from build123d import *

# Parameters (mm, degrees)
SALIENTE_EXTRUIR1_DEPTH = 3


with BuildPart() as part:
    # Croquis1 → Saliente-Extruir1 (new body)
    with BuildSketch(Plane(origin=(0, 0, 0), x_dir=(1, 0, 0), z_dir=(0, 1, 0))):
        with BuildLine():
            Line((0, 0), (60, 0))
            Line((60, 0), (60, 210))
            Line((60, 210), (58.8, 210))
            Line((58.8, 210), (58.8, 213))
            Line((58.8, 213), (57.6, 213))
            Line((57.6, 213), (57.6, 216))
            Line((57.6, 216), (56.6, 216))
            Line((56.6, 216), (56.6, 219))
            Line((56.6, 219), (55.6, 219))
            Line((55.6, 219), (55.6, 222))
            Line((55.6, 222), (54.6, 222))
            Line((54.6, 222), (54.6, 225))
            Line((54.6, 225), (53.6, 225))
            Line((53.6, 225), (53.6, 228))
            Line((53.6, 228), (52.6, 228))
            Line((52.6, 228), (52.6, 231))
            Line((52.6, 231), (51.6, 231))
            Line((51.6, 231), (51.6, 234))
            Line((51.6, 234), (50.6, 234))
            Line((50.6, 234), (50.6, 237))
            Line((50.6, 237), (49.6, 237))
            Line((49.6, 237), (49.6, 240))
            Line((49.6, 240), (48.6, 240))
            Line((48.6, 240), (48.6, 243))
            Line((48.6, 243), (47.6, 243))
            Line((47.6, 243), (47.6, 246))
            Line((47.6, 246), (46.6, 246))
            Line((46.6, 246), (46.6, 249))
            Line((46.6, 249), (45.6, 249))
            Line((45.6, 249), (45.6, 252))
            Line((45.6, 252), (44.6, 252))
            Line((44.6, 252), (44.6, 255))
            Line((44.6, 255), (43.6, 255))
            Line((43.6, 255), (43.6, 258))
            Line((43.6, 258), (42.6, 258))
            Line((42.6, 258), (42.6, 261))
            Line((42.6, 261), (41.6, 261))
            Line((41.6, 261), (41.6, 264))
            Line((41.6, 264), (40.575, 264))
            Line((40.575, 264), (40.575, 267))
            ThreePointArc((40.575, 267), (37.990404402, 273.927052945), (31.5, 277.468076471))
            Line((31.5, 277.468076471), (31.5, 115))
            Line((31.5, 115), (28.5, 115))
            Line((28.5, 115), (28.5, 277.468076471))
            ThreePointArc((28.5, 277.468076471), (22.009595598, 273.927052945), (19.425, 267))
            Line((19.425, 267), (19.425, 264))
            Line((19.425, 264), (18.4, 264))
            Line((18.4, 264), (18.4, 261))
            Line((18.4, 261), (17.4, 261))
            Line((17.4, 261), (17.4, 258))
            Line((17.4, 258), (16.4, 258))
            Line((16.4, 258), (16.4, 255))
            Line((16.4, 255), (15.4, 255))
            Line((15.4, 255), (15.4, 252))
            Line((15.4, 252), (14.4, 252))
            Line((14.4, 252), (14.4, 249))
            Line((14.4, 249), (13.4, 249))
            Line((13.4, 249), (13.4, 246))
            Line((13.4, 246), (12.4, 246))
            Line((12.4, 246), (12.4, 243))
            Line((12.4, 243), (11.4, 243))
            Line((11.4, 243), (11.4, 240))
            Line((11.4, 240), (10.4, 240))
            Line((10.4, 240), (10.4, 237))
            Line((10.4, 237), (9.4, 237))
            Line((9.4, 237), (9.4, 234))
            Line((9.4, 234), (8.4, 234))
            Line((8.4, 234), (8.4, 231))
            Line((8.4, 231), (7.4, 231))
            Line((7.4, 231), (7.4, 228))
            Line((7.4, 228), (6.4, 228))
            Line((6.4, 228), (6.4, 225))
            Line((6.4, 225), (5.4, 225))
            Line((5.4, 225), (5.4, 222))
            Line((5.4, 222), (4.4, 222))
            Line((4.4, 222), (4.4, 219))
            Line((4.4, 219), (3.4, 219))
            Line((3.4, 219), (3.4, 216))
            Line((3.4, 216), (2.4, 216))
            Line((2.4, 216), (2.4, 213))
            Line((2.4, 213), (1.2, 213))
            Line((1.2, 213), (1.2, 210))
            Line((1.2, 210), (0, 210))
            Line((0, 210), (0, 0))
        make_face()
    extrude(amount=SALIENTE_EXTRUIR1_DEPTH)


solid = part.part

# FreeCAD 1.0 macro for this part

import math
import FreeCAD as App
import Part
import Sketcher
from FreeCAD import Vector

doc = App.newDocument("Part")
body = doc.addObject("PartDesign::Body", "Body")

sketch1 = body.newObject("Sketcher::SketchObject", "Sketch")
sketch1.AttachmentSupport = (doc.getObject("XZ_Plane"), [""])
sketch1.MapMode = "FlatFace"
sketch1.addGeometry([
    Part.LineSegment(Vector(0, 0, 0), Vector(60, 0, 0)),
    Part.LineSegment(Vector(60, 0, 0), Vector(60, -210, 0)),
    Part.LineSegment(Vector(60, -210, 0), Vector(58.8, -210, 0)),
    Part.LineSegment(Vector(58.8, -210, 0), Vector(58.8, -213, 0)),
    Part.LineSegment(Vector(58.8, -213, 0), Vector(57.6, -213, 0)),
    Part.LineSegment(Vector(57.6, -213, 0), Vector(57.6, -216, 0)),
    Part.LineSegment(Vector(57.6, -216, 0), Vector(56.6, -216, 0)),
    Part.LineSegment(Vector(56.6, -216, 0), Vector(56.6, -219, 0)),
    Part.LineSegment(Vector(56.6, -219, 0), Vector(55.6, -219, 0)),
    Part.LineSegment(Vector(55.6, -219, 0), Vector(55.6, -222, 0)),
    Part.LineSegment(Vector(55.6, -222, 0), Vector(54.6, -222, 0)),
    Part.LineSegment(Vector(54.6, -222, 0), Vector(54.6, -225, 0)),
    Part.LineSegment(Vector(54.6, -225, 0), Vector(53.6, -225, 0)),
    Part.LineSegment(Vector(53.6, -225, 0), Vector(53.6, -228, 0)),
    Part.LineSegment(Vector(53.6, -228, 0), Vector(52.6, -228, 0)),
    Part.LineSegment(Vector(52.6, -228, 0), Vector(52.6, -231, 0)),
    Part.LineSegment(Vector(52.6, -231, 0), Vector(51.6, -231, 0)),
    Part.LineSegment(Vector(51.6, -231, 0), Vector(51.6, -234, 0)),
    Part.LineSegment(Vector(51.6, -234, 0), Vector(50.6, -234, 0)),
    Part.LineSegment(Vector(50.6, -234, 0), Vector(50.6, -237, 0)),
    Part.LineSegment(Vector(50.6, -237, 0), Vector(49.6, -237, 0)),
    Part.LineSegment(Vector(49.6, -237, 0), Vector(49.6, -240, 0)),
    Part.LineSegment(Vector(49.6, -240, 0), Vector(48.6, -240, 0)),
    Part.LineSegment(Vector(48.6, -240, 0), Vector(48.6, -243, 0)),
    Part.LineSegment(Vector(48.6, -243, 0), Vector(47.6, -243, 0)),
    Part.LineSegment(Vector(47.6, -243, 0), Vector(47.6, -246, 0)),
    Part.LineSegment(Vector(47.6, -246, 0), Vector(46.6, -246, 0)),
    Part.LineSegment(Vector(46.6, -246, 0), Vector(46.6, -249, 0)),
    Part.LineSegment(Vector(46.6, -249, 0), Vector(45.6, -249, 0)),
    Part.LineSegment(Vector(45.6, -249, 0), Vector(45.6, -252, 0)),
    Part.LineSegment(Vector(45.6, -252, 0), Vector(44.6, -252, 0)),
    Part.LineSegment(Vector(44.6, -252, 0), Vector(44.6, -255, 0)),
    Part.LineSegment(Vector(44.6, -255, 0), Vector(43.6, -255, 0)),
    Part.LineSegment(Vector(43.6, -255, 0), Vector(43.6, -258, 0)),
    Part.LineSegment(Vector(43.6, -258, 0), Vector(42.6, -258, 0)),
    Part.LineSegment(Vector(42.6, -258, 0), Vector(42.6, -261, 0)),
    Part.LineSegment(Vector(42.6, -261, 0), Vector(41.6, -261, 0)),
    Part.LineSegment(Vector(41.6, -261, 0), Vector(41.6, -264, 0)),
    Part.LineSegment(Vector(41.6, -264, 0), Vector(40.6, -264, 0)),
    Part.LineSegment(Vector(40.6, -264, 0), Vector(40.6, -267, 0)),
    Part.ArcOfCircle(Part.Circle(Vector(30, -267, 0), Vector(0, 0, 1), 10.6), math.radians(-82), math.radians(0)),
    Part.LineSegment(Vector(31.5, -277.5, 0), Vector(31.5, -115, 0)),
    Part.LineSegment(Vector(31.5, -115, 0), Vector(28.5, -115, 0)),
    Part.LineSegment(Vector(28.5, -115, 0), Vector(28.5, -277.5, 0)),
    Part.ArcOfCircle(Part.Circle(Vector(30, -267, 0), Vector(0, 0, 1), 10.6), math.radians(180), math.radians(262)),
    Part.LineSegment(Vector(19.4, -267, 0), Vector(19.4, -264, 0)),
    Part.LineSegment(Vector(19.4, -264, 0), Vector(18.4, -264, 0)),
    Part.LineSegment(Vector(18.4, -264, 0), Vector(18.4, -261, 0)),
    Part.LineSegment(Vector(18.4, -261, 0), Vector(17.4, -261, 0)),
    Part.LineSegment(Vector(17.4, -261, 0), Vector(17.4, -258, 0)),
    Part.LineSegment(Vector(17.4, -258, 0), Vector(16.4, -258, 0)),
    Part.LineSegment(Vector(16.4, -258, 0), Vector(16.4, -255, 0)),
    Part.LineSegment(Vector(16.4, -255, 0), Vector(15.4, -255, 0)),
    Part.LineSegment(Vector(15.4, -255, 0), Vector(15.4, -252, 0)),
    Part.LineSegment(Vector(15.4, -252, 0), Vector(14.4, -252, 0)),
    Part.LineSegment(Vector(14.4, -252, 0), Vector(14.4, -249, 0)),
    Part.LineSegment(Vector(14.4, -249, 0), Vector(13.4, -249, 0)),
    Part.LineSegment(Vector(13.4, -249, 0), Vector(13.4, -246, 0)),
    Part.LineSegment(Vector(13.4, -246, 0), Vector(12.4, -246, 0)),
    Part.LineSegment(Vector(12.4, -246, 0), Vector(12.4, -243, 0)),
    Part.LineSegment(Vector(12.4, -243, 0), Vector(11.4, -243, 0)),
    Part.LineSegment(Vector(11.4, -243, 0), Vector(11.4, -240, 0)),
    Part.LineSegment(Vector(11.4, -240, 0), Vector(10.4, -240, 0)),
    Part.LineSegment(Vector(10.4, -240, 0), Vector(10.4, -237, 0)),
    Part.LineSegment(Vector(10.4, -237, 0), Vector(9.4, -237, 0)),
    Part.LineSegment(Vector(9.4, -237, 0), Vector(9.4, -234, 0)),
    Part.LineSegment(Vector(9.4, -234, 0), Vector(8.4, -234, 0)),
    Part.LineSegment(Vector(8.4, -234, 0), Vector(8.4, -231, 0)),
    Part.LineSegment(Vector(8.4, -231, 0), Vector(7.4, -231, 0)),
    Part.LineSegment(Vector(7.4, -231, 0), Vector(7.4, -228, 0)),
    Part.LineSegment(Vector(7.4, -228, 0), Vector(6.4, -228, 0)),
    Part.LineSegment(Vector(6.4, -228, 0), Vector(6.4, -225, 0)),
    Part.LineSegment(Vector(6.4, -225, 0), Vector(5.4, -225, 0)),
    Part.LineSegment(Vector(5.4, -225, 0), Vector(5.4, -222, 0)),
    Part.LineSegment(Vector(5.4, -222, 0), Vector(4.4, -222, 0)),
    Part.LineSegment(Vector(4.4, -222, 0), Vector(4.4, -219, 0)),
    Part.LineSegment(Vector(4.4, -219, 0), Vector(3.4, -219, 0)),
    Part.LineSegment(Vector(3.4, -219, 0), Vector(3.4, -216, 0)),
    Part.LineSegment(Vector(3.4, -216, 0), Vector(2.4, -216, 0)),
    Part.LineSegment(Vector(2.4, -216, 0), Vector(2.4, -213, 0)),
    Part.LineSegment(Vector(2.4, -213, 0), Vector(1.2, -213, 0)),
    Part.LineSegment(Vector(1.2, -213, 0), Vector(1.2, -210, 0)),
    Part.LineSegment(Vector(1.2, -210, 0), Vector(0, -210, 0)),
    Part.LineSegment(Vector(0, -210, 0), Vector(0, 0, 0)),
], False)
sketch1.addConstraint([
    Sketcher.Constraint("Coincident", 0, 2, 1, 1),
    Sketcher.Constraint("Coincident", 1, 2, 2, 1),
    Sketcher.Constraint("Coincident", 2, 2, 3, 1),
    Sketcher.Constraint("Coincident", 3, 2, 4, 1),
    Sketcher.Constraint("Coincident", 4, 2, 5, 1),
    Sketcher.Constraint("Coincident", 5, 2, 6, 1),
    Sketcher.Constraint("Coincident", 6, 2, 7, 1),
    Sketcher.Constraint("Coincident", 7, 2, 8, 1),
    Sketcher.Constraint("Coincident", 8, 2, 9, 1),
    Sketcher.Constraint("Coincident", 9, 2, 10, 1),
    Sketcher.Constraint("Coincident", 10, 2, 11, 1),
    Sketcher.Constraint("Coincident", 11, 2, 12, 1),
    Sketcher.Constraint("Coincident", 12, 2, 13, 1),
    Sketcher.Constraint("Coincident", 13, 2, 14, 1),
    Sketcher.Constraint("Coincident", 14, 2, 15, 1),
    Sketcher.Constraint("Coincident", 15, 2, 16, 1),
    Sketcher.Constraint("Coincident", 16, 2, 17, 1),
    Sketcher.Constraint("Coincident", 17, 2, 18, 1),
    Sketcher.Constraint("Coincident", 18, 2, 19, 1),
    Sketcher.Constraint("Coincident", 19, 2, 20, 1),
    Sketcher.Constraint("Coincident", 20, 2, 21, 1),
    Sketcher.Constraint("Coincident", 21, 2, 22, 1),
    Sketcher.Constraint("Coincident", 22, 2, 23, 1),
    Sketcher.Constraint("Coincident", 23, 2, 24, 1),
    Sketcher.Constraint("Coincident", 24, 2, 25, 1),
    Sketcher.Constraint("Coincident", 25, 2, 26, 1),
    Sketcher.Constraint("Coincident", 26, 2, 27, 1),
    Sketcher.Constraint("Coincident", 27, 2, 28, 1),
    Sketcher.Constraint("Coincident", 28, 2, 29, 1),
    Sketcher.Constraint("Coincident", 29, 2, 30, 1),
    Sketcher.Constraint("Coincident", 30, 2, 31, 1),
    Sketcher.Constraint("Coincident", 31, 2, 32, 1),
    Sketcher.Constraint("Coincident", 32, 2, 33, 1),
    Sketcher.Constraint("Coincident", 33, 2, 34, 1),
    Sketcher.Constraint("Coincident", 34, 2, 35, 1),
    Sketcher.Constraint("Coincident", 35, 2, 36, 1),
    Sketcher.Constraint("Coincident", 36, 2, 37, 1),
    Sketcher.Constraint("Coincident", 37, 2, 38, 1),
    Sketcher.Constraint("Coincident", 38, 2, 39, 1),
    Sketcher.Constraint("Tangent", 39, 2, 40, 2),
    Sketcher.Constraint("Coincident", 40, 1, 41, 1),
    Sketcher.Constraint("Coincident", 41, 2, 42, 1),
    Sketcher.Constraint("Coincident", 42, 2, 43, 1),
    Sketcher.Constraint("Coincident", 43, 2, 44, 2),
    Sketcher.Constraint("Tangent", 44, 1, 45, 1),
    Sketcher.Constraint("Coincident", 45, 2, 46, 1),
    Sketcher.Constraint("Coincident", 46, 2, 47, 1),
    Sketcher.Constraint("Coincident", 47, 2, 48, 1),
    Sketcher.Constraint("Coincident", 48, 2, 49, 1),
    Sketcher.Constraint("Coincident", 49, 2, 50, 1),
    Sketcher.Constraint("Coincident", 50, 2, 51, 1),
    Sketcher.Constraint("Coincident", 51, 2, 52, 1),
    Sketcher.Constraint("Coincident", 52, 2, 53, 1),
    Sketcher.Constraint("Coincident", 53, 2, 54, 1),
    Sketcher.Constraint("Coincident", 54, 2, 55, 1),
    Sketcher.Constraint("Coincident", 55, 2, 56, 1),
    Sketcher.Constraint("Coincident", 56, 2, 57, 1),
    Sketcher.Constraint("Coincident", 57, 2, 58, 1),
    Sketcher.Constraint("Coincident", 58, 2, 59, 1),
    Sketcher.Constraint("Coincident", 59, 2, 60, 1),
    Sketcher.Constraint("Coincident", 60, 2, 61, 1),
    Sketcher.Constraint("Coincident", 61, 2, 62, 1),
    Sketcher.Constraint("Coincident", 62, 2, 63, 1),
    Sketcher.Constraint("Coincident", 63, 2, 64, 1),
    Sketcher.Constraint("Coincident", 64, 2, 65, 1),
    Sketcher.Constraint("Coincident", 65, 2, 66, 1),
    Sketcher.Constraint("Coincident", 66, 2, 67, 1),
    Sketcher.Constraint("Coincident", 67, 2, 68, 1),
    Sketcher.Constraint("Coincident", 68, 2, 69, 1),
    Sketcher.Constraint("Coincident", 69, 2, 70, 1),
    Sketcher.Constraint("Coincident", 70, 2, 71, 1),
    Sketcher.Constraint("Coincident", 71, 2, 72, 1),
    Sketcher.Constraint("Coincident", 72, 2, 73, 1),
    Sketcher.Constraint("Coincident", 73, 2, 74, 1),
    Sketcher.Constraint("Coincident", 74, 2, 75, 1),
    Sketcher.Constraint("Coincident", 75, 2, 76, 1),
    Sketcher.Constraint("Coincident", 76, 2, 77, 1),
    Sketcher.Constraint("Coincident", 77, 2, 78, 1),
    Sketcher.Constraint("Coincident", 78, 2, 79, 1),
    Sketcher.Constraint("Coincident", 79, 2, 80, 1),
    Sketcher.Constraint("Coincident", 80, 2, 81, 1),
    Sketcher.Constraint("Coincident", 81, 2, 82, 1),
    Sketcher.Constraint("Coincident", 82, 2, 83, 1),
    Sketcher.Constraint("Coincident", 83, 2, 0, 1),
    Sketcher.Constraint("Horizontal", 0),
    Sketcher.Constraint("Vertical", 1),
    Sketcher.Constraint("Horizontal", 2),
    Sketcher.Constraint("Vertical", 3),
    Sketcher.Constraint("Horizontal", 4),
    Sketcher.Constraint("Vertical", 5),
    Sketcher.Constraint("Horizontal", 6),
    Sketcher.Constraint("Vertical", 7),
    Sketcher.Constraint("Horizontal", 8),
    Sketcher.Constraint("Vertical", 9),
    Sketcher.Constraint("Horizontal", 10),
    Sketcher.Constraint("Vertical", 11),
    Sketcher.Constraint("Horizontal", 12),
    Sketcher.Constraint("Vertical", 13),
    Sketcher.Constraint("Horizontal", 14),
    Sketcher.Constraint("Vertical", 15),
    Sketcher.Constraint("Horizontal", 16),
    Sketcher.Constraint("Vertical", 17),
    Sketcher.Constraint("Horizontal", 18),
    Sketcher.Constraint("Vertical", 19),
    Sketcher.Constraint("Horizontal", 20),
    Sketcher.Constraint("Vertical", 21),
    Sketcher.Constraint("Horizontal", 22),
    Sketcher.Constraint("Vertical", 23),
    Sketcher.Constraint("Horizontal", 24),
    Sketcher.Constraint("Vertical", 25),
    Sketcher.Constraint("Horizontal", 26),
    Sketcher.Constraint("Vertical", 27),
    Sketcher.Constraint("Horizontal", 28),
    Sketcher.Constraint("Vertical", 29),
    Sketcher.Constraint("Horizontal", 30),
    Sketcher.Constraint("Vertical", 31),
    Sketcher.Constraint("Horizontal", 32),
    Sketcher.Constraint("Vertical", 33),
    Sketcher.Constraint("Horizontal", 34),
    Sketcher.Constraint("Vertical", 35),
    Sketcher.Constraint("Horizontal", 36),
    Sketcher.Constraint("Vertical", 37),
    Sketcher.Constraint("Horizontal", 38),
    Sketcher.Constraint("Vertical", 39),
    Sketcher.Constraint("Vertical", 41),
    Sketcher.Constraint("Horizontal", 42),
    Sketcher.Constraint("Vertical", 43),
    Sketcher.Constraint("Vertical", 45),
    Sketcher.Constraint("Horizontal", 46),
    Sketcher.Constraint("Vertical", 47),
    Sketcher.Constraint("Horizontal", 48),
    Sketcher.Constraint("Vertical", 49),
    Sketcher.Constraint("Horizontal", 50),
    Sketcher.Constraint("Vertical", 51),
    Sketcher.Constraint("Horizontal", 52),
    Sketcher.Constraint("Vertical", 53),
    Sketcher.Constraint("Horizontal", 54),
    Sketcher.Constraint("Vertical", 55),
    Sketcher.Constraint("Horizontal", 56),
    Sketcher.Constraint("Vertical", 57),
    Sketcher.Constraint("Horizontal", 58),
    Sketcher.Constraint("Vertical", 59),
    Sketcher.Constraint("Horizontal", 60),
    Sketcher.Constraint("Vertical", 61),
    Sketcher.Constraint("Horizontal", 62),
    Sketcher.Constraint("Vertical", 63),
    Sketcher.Constraint("Horizontal", 64),
    Sketcher.Constraint("Vertical", 65),
    Sketcher.Constraint("Horizontal", 66),
    Sketcher.Constraint("Vertical", 67),
    Sketcher.Constraint("Horizontal", 68),
    Sketcher.Constraint("Vertical", 69),
    Sketcher.Constraint("Horizontal", 70),
    Sketcher.Constraint("Vertical", 71),
    Sketcher.Constraint("Horizontal", 72),
    Sketcher.Constraint("Vertical", 73),
    Sketcher.Constraint("Horizontal", 74),
    Sketcher.Constraint("Vertical", 75),
    Sketcher.Constraint("Horizontal", 76),
    Sketcher.Constraint("Vertical", 77),
    Sketcher.Constraint("Horizontal", 78),
    Sketcher.Constraint("Vertical", 79),
    Sketcher.Constraint("Horizontal", 80),
    Sketcher.Constraint("Vertical", 81),
    Sketcher.Constraint("Horizontal", 82),
    Sketcher.Constraint("Vertical", 83),
    Sketcher.Constraint("Coincident", 83, 2, -1, 1),
    Sketcher.Constraint("Coincident", 44, 3, 40, 3),
    Sketcher.Constraint("Equal", 40, 44),
    Sketcher.Constraint("Horizontal", 40, 1, 43, 2),
    Sketcher.Constraint("Horizontal", 38, 2, 45, 2),
    Sketcher.Constraint("Horizontal", 36, 2, 47, 2),
    Sketcher.Constraint("Horizontal", 34, 2, 49, 2),
    Sketcher.Constraint("Horizontal", 32, 2, 51, 2),
    Sketcher.Constraint("Horizontal", 30, 2, 53, 2),
    Sketcher.Constraint("Horizontal", 28, 2, 55, 2),
    Sketcher.Constraint("Horizontal", 26, 2, 57, 2),
    Sketcher.Constraint("Horizontal", 24, 2, 59, 2),
    Sketcher.Constraint("Horizontal", 22, 2, 61, 2),
    Sketcher.Constraint("Horizontal", 20, 2, 63, 2),
    Sketcher.Constraint("Horizontal", 18, 2, 65, 2),
    Sketcher.Constraint("Horizontal", 16, 2, 67, 2),
    Sketcher.Constraint("Horizontal", 14, 2, 69, 2),
    Sketcher.Constraint("Horizontal", 12, 2, 71, 2),
    Sketcher.Constraint("Horizontal", 10, 2, 73, 2),
    Sketcher.Constraint("Horizontal", 8, 2, 75, 2),
    Sketcher.Constraint("Horizontal", 6, 2, 77, 2),
    Sketcher.Constraint("Horizontal", 4, 2, 79, 2),
    Sketcher.Constraint("Horizontal", 2, 2, 81, 2),
    Sketcher.Constraint("Equal", 2, 4),
    Sketcher.Constraint("Equal", 6, 8),
    Sketcher.Constraint("Equal", 8, 10),
    Sketcher.Constraint("Equal", 10, 12),
    Sketcher.Constraint("Equal", 12, 14),
    Sketcher.Constraint("Equal", 14, 16),
    Sketcher.Constraint("Equal", 16, 18),
    Sketcher.Constraint("Equal", 18, 20),
    Sketcher.Constraint("Equal", 20, 22),
    Sketcher.Constraint("Equal", 22, 24),
    Sketcher.Constraint("Equal", 24, 26),
    Sketcher.Constraint("Equal", 26, 28),
    Sketcher.Constraint("Equal", 28, 30),
    Sketcher.Constraint("Equal", 30, 32),
    Sketcher.Constraint("Equal", 32, 34),
    Sketcher.Constraint("Equal", 34, 36),
    Sketcher.Constraint("Equal", 38, 46),
    Sketcher.Constraint("Equal", 36, 48),
    Sketcher.Constraint("Equal", 48, 50),
    Sketcher.Constraint("Equal", 50, 52),
    Sketcher.Constraint("Equal", 52, 54),
    Sketcher.Constraint("Equal", 54, 56),
    Sketcher.Constraint("Equal", 56, 58),
    Sketcher.Constraint("Equal", 58, 60),
    Sketcher.Constraint("Equal", 60, 62),
    Sketcher.Constraint("Equal", 62, 64),
    Sketcher.Constraint("Equal", 64, 66),
    Sketcher.Constraint("Equal", 66, 68),
    Sketcher.Constraint("Equal", 68, 70),
    Sketcher.Constraint("Equal", 70, 72),
    Sketcher.Constraint("Equal", 72, 74),
    Sketcher.Constraint("Equal", 74, 76),
    Sketcher.Constraint("Equal", 76, 78),
    Sketcher.Constraint("Equal", 4, 80),
    Sketcher.Constraint("Equal", 80, 82),
    Sketcher.Constraint("Equal", 42, 3),
    Sketcher.Constraint("Equal", 3, 5),
    Sketcher.Constraint("Equal", 5, 7),
    Sketcher.Constraint("Equal", 7, 9),
    Sketcher.Constraint("Equal", 9, 11),
    Sketcher.Constraint("Equal", 11, 13),
    Sketcher.Constraint("Equal", 13, 15),
    Sketcher.Constraint("Equal", 15, 17),
    Sketcher.Constraint("Equal", 17, 19),
    Sketcher.Constraint("Equal", 19, 21),
    Sketcher.Constraint("Equal", 21, 23),
    Sketcher.Constraint("Equal", 23, 25),
    Sketcher.Constraint("Equal", 25, 27),
    Sketcher.Constraint("Equal", 27, 29),
    Sketcher.Constraint("Equal", 29, 31),
    Sketcher.Constraint("Equal", 31, 33),
    Sketcher.Constraint("Equal", 33, 35),
    Sketcher.Constraint("Equal", 35, 37),
    Sketcher.Constraint("Equal", 37, 39),
    Sketcher.Constraint("DistanceX", 0, 1, 0, 2, 60.0),
    Sketcher.Constraint("DistanceX", 6, 2, 6, 1, 1.0),
    Sketcher.Constraint("DistanceX", 42, 2, 42, 1, 3.0),
    Sketcher.Constraint("DistanceY", 1, 2, 1, 1, 210.0),
    Sketcher.Constraint("DistanceX", 2, 2, 2, 1, 1.2),
    Sketcher.Constraint("DistanceY", 41, 2, -1, 1, 115.0),
    Sketcher.Constraint("Radius", 40, 10.575),
])
pad1 = body.newObject("PartDesign::Pad", "Pad")
pad1.Profile = sketch1
pad1.Length = 3
pad1.Reversed = True

doc.recompute()
